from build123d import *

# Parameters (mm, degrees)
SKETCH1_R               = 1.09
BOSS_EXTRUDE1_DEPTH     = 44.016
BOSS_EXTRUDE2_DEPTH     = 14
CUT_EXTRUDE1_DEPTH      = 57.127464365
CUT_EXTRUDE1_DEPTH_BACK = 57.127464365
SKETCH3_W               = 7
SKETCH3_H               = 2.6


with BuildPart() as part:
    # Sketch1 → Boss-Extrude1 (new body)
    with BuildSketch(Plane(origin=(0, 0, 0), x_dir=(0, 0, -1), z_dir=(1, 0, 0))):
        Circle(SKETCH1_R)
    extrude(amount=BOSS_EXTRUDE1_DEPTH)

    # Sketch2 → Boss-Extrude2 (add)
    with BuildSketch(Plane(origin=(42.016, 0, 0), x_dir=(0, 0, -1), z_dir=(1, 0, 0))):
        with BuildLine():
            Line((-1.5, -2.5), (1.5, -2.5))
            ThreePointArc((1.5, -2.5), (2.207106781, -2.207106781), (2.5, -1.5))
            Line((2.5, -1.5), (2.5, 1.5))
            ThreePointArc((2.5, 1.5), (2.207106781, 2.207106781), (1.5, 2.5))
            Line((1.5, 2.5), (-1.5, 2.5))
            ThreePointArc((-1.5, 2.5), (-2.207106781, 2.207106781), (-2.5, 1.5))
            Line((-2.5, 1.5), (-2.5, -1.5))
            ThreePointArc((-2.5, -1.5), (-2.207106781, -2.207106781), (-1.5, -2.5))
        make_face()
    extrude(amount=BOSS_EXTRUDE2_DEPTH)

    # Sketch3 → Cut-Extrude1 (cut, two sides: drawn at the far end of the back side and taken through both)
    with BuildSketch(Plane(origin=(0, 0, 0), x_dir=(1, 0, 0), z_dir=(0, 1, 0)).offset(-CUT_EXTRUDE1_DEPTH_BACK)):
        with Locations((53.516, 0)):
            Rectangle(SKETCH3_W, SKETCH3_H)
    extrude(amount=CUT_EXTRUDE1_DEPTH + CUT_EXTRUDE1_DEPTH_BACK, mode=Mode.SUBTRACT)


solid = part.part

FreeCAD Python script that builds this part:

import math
import FreeCAD as App
import Part
import Sketcher

V = App.Vector


def add_polygon(sketch, points):
    """Adds a closed chain of lines whose ends are joined by coincident constraints."""
    first, n = sketch.GeometryCount, len(points)
    for a, b in zip(points, points[1:] + points[:1]):
        sketch.addGeometry(Part.LineSegment(App.Vector(*a, 0), App.Vector(*b, 0)), False)
    for i in range(n):
        sketch.addConstraint(Sketcher.Constraint("Coincident", first + i, 2, first + (i + 1) % n, 1))

doc = App.newDocument("Part")
body = doc.addObject("PartDesign::Body", "Body")

sketch1 = doc.addObject("Sketcher::SketchObject", "Sketch")
body.addObject(sketch1)
sketch1.AttachmentSupport = (doc.YZ_Plane, [""])
sketch1.MapMode = "FlatFace"
sketch1.addGeometry(Part.Circle(V(0, 0, 0), V(0, 0, 1), 1.1), False)
sketch1.addConstraint([
    Sketcher.Constraint("Coincident", 0, 3, -1, 1),
    Sketcher.Constraint("Diameter", 0, 2.18),
])
pad1 = doc.addObject("PartDesign::Pad", "Pad")
body.addObject(pad1)
pad1.Profile = sketch1
pad1.Length = 44.016

sketch2 = doc.addObject("Sketcher::SketchObject", "Sketch001")
body.addObject(sketch2)
sketch2.AttachmentSupport = (doc.YZ_Plane, [""])
sketch2.MapMode = "FlatFace"
sketch2.AttachmentOffset = App.Placement(V(0, 0, 42.016), App.Rotation())
sketch2.addGeometry([
    Part.LineSegment(V(-2.5, 1.5, 0), V(-2.5, -1.5, 0)),
    Part.ArcOfCircle(Part.Circle(V(-1.5, -1.5, 0), V(0, 0, 1), 1), math.radians(-180), math.radians(-90)),
    Part.LineSegment(V(-1.5, -2.5, 0), V(1.5, -2.5, 0)),
    Part.ArcOfCircle(Part.Circle(V(1.5, -1.5, 0), V(0, 0, 1), 1), math.radians(-90), math.radians(0)),
    Part.LineSegment(V(2.5, -1.5, 0), V(2.5, 1.5, 0)),
    Part.ArcOfCircle(Part.Circle(V(1.5, 1.5, 0), V(0, 0, 1), 1), math.radians(0), math.radians(90)),
    Part.LineSegment(V(1.5, 2.5, 0), V(-1.5, 2.5, 0)),
    Part.ArcOfCircle(Part.Circle(V(-1.5, 1.5, 0), V(0, 0, 1), 1), math.radians(90), math.radians(180)),
], False)
sketch2.addConstraint([
    Sketcher.Constraint("Tangent", 0, 2, 1, 1),
    Sketcher.Constraint("Tangent", 1, 2, 2, 1),
    Sketcher.Constraint("Tangent", 2, 2, 3, 1),
    Sketcher.Constraint("Tangent", 3, 2, 4, 1),
    Sketcher.Constraint("Tangent", 4, 2, 5, 1),
    Sketcher.Constraint("Tangent", 5, 2, 6, 1),
    Sketcher.Constraint("Tangent", 6, 2, 7, 1),
    Sketcher.Constraint("Tangent", 7, 2, 0, 1),
    Sketcher.Constraint("Vertical", 0),
    Sketcher.Constraint("Horizontal", 2),
    Sketcher.Constraint("Vertical", 4),
    Sketcher.Constraint("Horizontal", 6),
    Sketcher.Constraint("Equal", 1, 3),
    Sketcher.Constraint("Equal", 3, 5),
    Sketcher.Constraint("Equal", 5, 7),
    Sketcher.Constraint("Symmetric", 1, 3, 5, 3, -1, 1),
    Sketcher.Constraint("Equal", 6, 0),
    Sketcher.Constraint("Radius", 1, 1.0),
    Sketcher.Constraint("DistanceX", 2, 1, 2, 2, 3.0),
])
pad2 = doc.addObject("PartDesign::Pad", "Pad001")
body.addObject(pad2)
pad2.Profile = sketch2
pad2.Length = 14

sketch3 = doc.addObject("Sketcher::SketchObject", "Sketch002")
body.addObject(sketch3)
sketch3.AttachmentSupport = (doc.XZ_Plane, [""])
sketch3.MapMode = "FlatFace"
add_polygon(sketch3, [(50, -1.3), (50, 1.3), (57, 1.3), (57, -1.3)])
sketch3.addConstraint([
    Sketcher.Constraint("Vertical", 0),
    Sketcher.Constraint("Horizontal", 1),
    Sketcher.Constraint("Vertical", 2),
    Sketcher.Constraint("Horizontal", 3),
    Sketcher.Constraint("DistanceX", 1, 1, 1, 2, 7.0),
    Sketcher.Constraint("DistanceY", 0, 1, 0, 2, 2.6),
    Sketcher.Constraint("DistanceY", -1, 1, 0, 2, 1.3),
    Sketcher.Constraint("DistanceX", -1, 1, 0, 2, 50.016),
])
pocket1 = doc.addObject("PartDesign::Pocket", "Pocket")
body.addObject(pocket1)
pocket1.Profile = sketch3
pocket1.Type = "ThroughAll"
pocket1.Midplane = True

doc.recompute()
